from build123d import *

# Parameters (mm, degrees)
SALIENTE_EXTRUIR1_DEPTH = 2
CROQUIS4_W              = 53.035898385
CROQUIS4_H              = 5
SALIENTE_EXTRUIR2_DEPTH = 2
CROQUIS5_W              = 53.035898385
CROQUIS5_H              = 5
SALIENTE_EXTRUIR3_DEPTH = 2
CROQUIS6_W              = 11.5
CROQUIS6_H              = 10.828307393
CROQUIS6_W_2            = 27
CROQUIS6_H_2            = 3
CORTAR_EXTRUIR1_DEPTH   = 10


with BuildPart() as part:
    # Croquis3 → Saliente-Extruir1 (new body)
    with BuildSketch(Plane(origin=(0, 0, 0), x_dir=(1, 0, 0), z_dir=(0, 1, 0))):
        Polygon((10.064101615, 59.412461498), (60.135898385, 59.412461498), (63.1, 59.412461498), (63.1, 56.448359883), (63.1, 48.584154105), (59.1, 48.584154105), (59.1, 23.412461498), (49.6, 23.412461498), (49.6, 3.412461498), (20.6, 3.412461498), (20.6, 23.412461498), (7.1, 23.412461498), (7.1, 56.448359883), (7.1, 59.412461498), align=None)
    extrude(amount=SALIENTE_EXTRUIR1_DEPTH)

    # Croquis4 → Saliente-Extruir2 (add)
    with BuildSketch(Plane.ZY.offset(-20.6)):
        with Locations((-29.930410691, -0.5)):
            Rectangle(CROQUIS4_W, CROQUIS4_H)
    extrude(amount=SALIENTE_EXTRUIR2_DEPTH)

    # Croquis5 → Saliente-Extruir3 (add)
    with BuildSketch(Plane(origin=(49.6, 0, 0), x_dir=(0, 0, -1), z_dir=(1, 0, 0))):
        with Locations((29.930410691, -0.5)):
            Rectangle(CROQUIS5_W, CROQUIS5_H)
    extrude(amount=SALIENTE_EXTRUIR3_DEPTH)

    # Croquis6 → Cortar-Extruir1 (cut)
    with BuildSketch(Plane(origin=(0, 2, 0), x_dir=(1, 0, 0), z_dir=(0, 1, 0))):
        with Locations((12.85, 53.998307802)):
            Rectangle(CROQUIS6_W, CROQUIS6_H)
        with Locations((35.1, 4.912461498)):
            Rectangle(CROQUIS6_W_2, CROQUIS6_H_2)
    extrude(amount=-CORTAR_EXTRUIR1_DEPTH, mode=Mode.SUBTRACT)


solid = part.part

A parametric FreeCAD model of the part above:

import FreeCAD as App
import Part
import Sketcher


def add_polygon(sketch, points):
    """Adds a closed chain of lines whose ends are joined by coincident constraints."""
    first, n = sketch.GeometryCount, len(points)
    for a, b in zip(points, points[1:] + points[:1]):
        sketch.addGeometry(Part.LineSegment(App.Vector(*a, 0), App.Vector(*b, 0)), False)
    for i in range(n):
        sketch.addConstraint(Sketcher.Constraint("Coincident", first + i, 2, first + (i + 1) % n, 1))

doc = App.newDocument("Part")
params = doc.addObject("Spreadsheet::Sheet", "Params")
for row, (alias, value) in enumerate([
    ("sketch1_width", "56 mm"),
    ("sketch1_width2", "29 mm"),
    ("sketch1_width3", "4 mm"),
    ("sketch1_height", "36 mm"),
    ("sketch1_height2", "20 mm"),
    ("pad1_length", "2 mm"),
    ("sketch2_width", "5 mm"),
    ("pad2_length", "2 mm"),
    ("sketch3_width", "5 mm"),
    ("pad3_length", "2 mm"),
    ("sketch4_width", "27 mm"),
    ("sketch4_height", "3 mm"),
    ("sketch4_width2", "11.5 mm"),
    ("pocket1_length", "10 mm"),
], start=1):
    params.set(f"A{row}", alias)
    params.set(f"B{row}", "=" + value)
    params.setAlias(f"B{row}", alias)

body = doc.addObject("PartDesign::Body", "Body")

# Sketch on XZ plane
sketch1 = body.newObject("Sketcher::SketchObject", "Sketch")
sketch1.AttachmentSupport = (doc.getObject("XZ_Plane"), [""])
sketch1.MapMode = "FlatFace"
add_polygon(sketch1, [(63.1, -59.4), (7.1, -59.4), (7.1, -23.4), (20.6, -23.4), (20.6, -3.4), (49.6, -3.4), (49.6, -23.4), (59.1, -23.4), (59.1, -48.6), (63.1, -48.6)])  # lines 0-9
sketch1.addConstraint(Sketcher.Constraint("Horizontal", 0))
sketch1.addConstraint(Sketcher.Constraint("Vertical", 1))
sketch1.addConstraint(Sketcher.Constraint("Horizontal", 2))
sketch1.addConstraint(Sketcher.Constraint("Vertical", 3))
sketch1.addConstraint(Sketcher.Constraint("Horizontal", 4))
sketch1.addConstraint(Sketcher.Constraint("Vertical", 5))
sketch1.addConstraint(Sketcher.Constraint("Horizontal", 6))
sketch1.addConstraint(Sketcher.Constraint("Vertical", 7))
sketch1.addConstraint(Sketcher.Constraint("Horizontal", 8))
sketch1.addConstraint(Sketcher.Constraint("Vertical", 9))
sketch1.addConstraint(Sketcher.Constraint("Horizontal", 2, 2, 5, 2))
sketch1.addConstraint(Sketcher.Constraint("DistanceX", 0, 2, 0, 1, 56.0))
sketch1.addConstraint(Sketcher.Constraint("DistanceX", 4, 1, 4, 2, 29.0))
sketch1.addConstraint(Sketcher.Constraint("DistanceX", 8, 1, 8, 2, 4.0))
sketch1.addConstraint(Sketcher.Constraint("DistanceY", 1, 1, 1, 2, 36.0))
sketch1.addConstraint(Sketcher.Constraint("DistanceY", 3, 1, 3, 2, 20.0))
sketch1.addConstraint(Sketcher.Constraint("DistanceX", 2, 1, 2, 2, 13.5))
sketch1.addConstraint(Sketcher.Constraint("DistanceX", -1, 1, 0, 2, 7.1))
sketch1.addConstraint(Sketcher.Constraint("DistanceY", 7, 2, 7, 1, 25.171693))
sketch1.addConstraint(Sketcher.Constraint("DistanceY", 0, 2, -1, 1, 59.412461))
sketch1.setExpression("Constraints[21]", "Params.sketch1_width")
sketch1.setExpression("Constraints[22]", "Params.sketch1_width2")
sketch1.setExpression("Constraints[23]", "Params.sketch1_width3")
sketch1.setExpression("Constraints[24]", "Params.sketch1_height")
sketch1.setExpression("Constraints[25]", "Params.sketch1_height2")
pad1 = body.newObject("PartDesign::Pad", "Pad")
pad1.Profile = sketch1
pad1.setExpression("Length", "Params.pad1_length")
pad1.Reversed = True

# Sketch on YZ plane
sketch2 = body.newObject("Sketcher::SketchObject", "Sketch001")
sketch2.AttachmentSupport = (doc.getObject("YZ_Plane"), [""])
sketch2.MapMode = "FlatFace"
sketch2.AttachmentOffset = App.Placement(App.Vector(0, 0, 20.6), App.Rotation())
add_polygon(sketch2, [(2, -56), (-3, -56), (-3, -3), (2, -3)])  # lines 0-3
sketch2.addConstraint(Sketcher.Constraint("Horizontal", 0))
sketch2.addConstraint(Sketcher.Constraint("Vertical", 1))
sketch2.addConstraint(Sketcher.Constraint("Horizontal", 2))
sketch2.addConstraint(Sketcher.Constraint("Vertical", 3))
sketch2.addConstraint(Sketcher.Constraint("DistanceX", 0, 2, 0, 1, 5.0))
sketch2.addConstraint(Sketcher.Constraint("DistanceX", 0, 2, -1, 1, 3.0))
sketch2.addConstraint(Sketcher.Constraint("DistanceY", 1, 1, 1, 2, 53.035898))
sketch2.addConstraint(Sketcher.Constraint("DistanceY", 0, 2, -1, 1, 56.44836))
sketch2.setExpression("Constraints[8]", "Params.sketch2_width")
pad2 = body.newObject("PartDesign::Pad", "Pad001")
pad2.Profile = sketch2
pad2.setExpression("Length", "Params.pad2_length")
pad2.Reversed = True

# Sketch on YZ plane
sketch3 = body.newObject("Sketcher::SketchObject", "Sketch002")
sketch3.AttachmentSupport = (doc.getObject("YZ_Plane"), [""])
sketch3.MapMode = "FlatFace"
sketch3.AttachmentOffset = App.Placement(App.Vector(0, 0, 49.6), App.Rotation())
add_polygon(sketch3, [(2, -3), (-3, -3), (-3, -56), (2, -56)])  # lines 0-3
sketch3.addConstraint(Sketcher.Constraint("Horizontal", 0))
sketch3.addConstraint(Sketcher.Constraint("Vertical", 1))
sketch3.addConstraint(Sketcher.Constraint("Horizontal", 2))
sketch3.addConstraint(Sketcher.Constraint("Vertical", 3))
sketch3.addConstraint(Sketcher.Constraint("DistanceX", 0, 2, 0, 1, 5.0))
sketch3.addConstraint(Sketcher.Constraint("DistanceX", 0, 2, -1, 1, 3.0))
sketch3.addConstraint(Sketcher.Constraint("DistanceY", 1, 2, 1, 1, 53.035898))
sketch3.addConstraint(Sketcher.Constraint("DistanceY", 0, 2, -1, 1, 3.412461))
sketch3.setExpression("Constraints[8]", "Params.sketch3_width")
pad3 = body.newObject("PartDesign::Pad", "Pad002")
pad3.Profile = sketch3
pad3.setExpression("Length", "Params.pad3_length")

# Sketch on XZ plane
sketch4 = body.newObject("Sketcher::SketchObject", "Sketch003")
sketch4.AttachmentSupport = (doc.getObject("XZ_Plane"), [""])
sketch4.MapMode = "FlatFace"
sketch4.AttachmentOffset = App.Placement(App.Vector(0, 0, -2), App.Rotation())
add_polygon(sketch4, [(7.1, -59.4), (7.1, -48.6), (18.6, -48.6), (18.6, -59.4)])  # lines 0-3
add_polygon(sketch4, [(21.6, -6.4), (21.6, -3.4), (48.6, -3.4), (48.6, -6.4)])  # lines 4-7
sketch4.addConstraint(Sketcher.Constraint("Vertical", 0))
sketch4.addConstraint(Sketcher.Constraint("Horizontal", 1))
sketch4.addConstraint(Sketcher.Constraint("Vertical", 2))
sketch4.addConstraint(Sketcher.Constraint("Horizontal", 3))
sketch4.addConstraint(Sketcher.Constraint("Vertical", 4))
sketch4.addConstraint(Sketcher.Constraint("Horizontal", 5))
sketch4.addConstraint(Sketcher.Constraint("Vertical", 6))
sketch4.addConstraint(Sketcher.Constraint("Horizontal", 7))
sketch4.addConstraint(Sketcher.Constraint("DistanceX", 5, 1, 5, 2, 27.0))
sketch4.addConstraint(Sketcher.Constraint("DistanceY", 4, 1, 4, 2, 3.0))
sketch4.addConstraint(Sketcher.Constraint("DistanceX", 1, 1, 1, 2, 11.5))
sketch4.addConstraint(Sketcher.Constraint("DistanceX", 1, 2, 4, 2, 3.0))
sketch4.addConstraint(Sketcher.Constraint("DistanceY", 2, 2, 4, 2, 56.0))
sketch4.addConstraint(Sketcher.Constraint("DistanceX", -1, 1, 0, 2, 7.1))
sketch4.addConstraint(Sketcher.Constraint("DistanceY", 0, 1, 0, 2, 10.828307))
sketch4.addConstraint(Sketcher.Constraint("DistanceY", 2, 2, -1, 1, 59.412461))
sketch4.setExpression("Constraints[16]", "Params.sketch4_width")
sketch4.setExpression("Constraints[17]", "Params.sketch4_height")
sketch4.setExpression("Constraints[18]", "Params.sketch4_width2")
pocket1 = body.newObject("PartDesign::Pocket", "Pocket")
pocket1.Profile = sketch4
pocket1.setExpression("Length", "Params.pocket1_length")
pocket1.Reversed = True

doc.recompute()
